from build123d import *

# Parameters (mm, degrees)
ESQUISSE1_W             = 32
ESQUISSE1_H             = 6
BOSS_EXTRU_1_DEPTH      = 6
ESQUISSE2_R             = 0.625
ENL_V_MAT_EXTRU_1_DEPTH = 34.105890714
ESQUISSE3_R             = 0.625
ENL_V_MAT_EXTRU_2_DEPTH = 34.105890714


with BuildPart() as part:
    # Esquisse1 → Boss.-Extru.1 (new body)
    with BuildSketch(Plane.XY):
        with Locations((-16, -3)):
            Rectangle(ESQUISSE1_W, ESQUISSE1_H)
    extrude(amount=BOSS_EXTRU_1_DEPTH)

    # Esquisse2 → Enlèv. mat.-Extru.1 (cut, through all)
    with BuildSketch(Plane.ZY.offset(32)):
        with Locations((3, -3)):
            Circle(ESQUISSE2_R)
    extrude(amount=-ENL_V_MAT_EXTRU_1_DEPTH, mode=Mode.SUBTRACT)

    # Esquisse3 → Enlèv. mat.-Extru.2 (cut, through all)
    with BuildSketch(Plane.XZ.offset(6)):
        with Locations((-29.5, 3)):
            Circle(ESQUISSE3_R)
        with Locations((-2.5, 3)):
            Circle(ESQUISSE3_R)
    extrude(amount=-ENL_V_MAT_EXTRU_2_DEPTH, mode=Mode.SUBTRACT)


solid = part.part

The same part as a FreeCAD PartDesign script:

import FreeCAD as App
import Part
import Sketcher

doc = App.newDocument("Part")
body = doc.addObject("PartDesign::Body", "Body")

sketch1 = doc.addObject("Sketcher::SketchObject", "Sketch")
body.addObject(sketch1)
sketch1.AttachmentSupport = (doc.XY_Plane, [""])
sketch1.MapMode = "FlatFace"
sketch1.addGeometry([
    Part.LineSegment(App.Vector(-32, 0, 0), App.Vector(-32, -6, 0)),
    Part.LineSegment(App.Vector(-32, -6, 0), App.Vector(0, -6, 0)),
    Part.LineSegment(App.Vector(0, -6, 0), App.Vector(0, 0, 0)),
    Part.LineSegment(App.Vector(0, 0, 0), App.Vector(-32, 0, 0)),
], False)
sketch1.addConstraint([
    Sketcher.Constraint("Coincident", 0, 2, 1, 1),
    Sketcher.Constraint("Coincident", 1, 2, 2, 1),
    Sketcher.Constraint("Coincident", 2, 2, 3, 1),
    Sketcher.Constraint("Coincident", 3, 2, 0, 1),
    Sketcher.Constraint("Vertical", 0),
    Sketcher.Constraint("Horizontal", 1),
    Sketcher.Constraint("Vertical", 2),
    Sketcher.Constraint("Horizontal", 3),
    Sketcher.Constraint("Coincident", 2, 2, -1, 1),
    Sketcher.Constraint("DistanceX", 1, 1, 1, 2, 32.0),
    Sketcher.Constraint("DistanceY", 0, 2, 0, 1, 6.0),
])
pad1 = doc.addObject("PartDesign::Pad", "Pad")
body.addObject(pad1)
pad1.Profile = sketch1
pad1.Length = 6

sketch2 = doc.addObject("Sketcher::SketchObject", "Sketch001")
body.addObject(sketch2)
sketch2.AttachmentSupport = (doc.YZ_Plane, [""])
sketch2.MapMode = "FlatFace"
sketch2.AttachmentOffset = App.Placement(App.Vector(0, 0, -32), App.Rotation())
sketch2.addGeometry(Part.Circle(App.Vector(-3, 3, 0), App.Vector(0, 0, 1), 0.625), False)
sketch2.addConstraint([
    Sketcher.Constraint("Diameter", 0, 1.25),
    Sketcher.Constraint("DistanceX", 0, 3, -1, 1, 3.0),
    Sketcher.Constraint("DistanceY", -1, 1, 0, 3, 3.0),
])
pocket1 = doc.addObject("PartDesign::Pocket", "Pocket")
body.addObject(pocket1)
pocket1.Profile = sketch2
pocket1.Type = "ThroughAll"
pocket1.Reversed = True

sketch3 = doc.addObject("Sketcher::SketchObject", "Sketch002")
body.addObject(sketch3)
sketch3.AttachmentSupport = (doc.XZ_Plane, [""])
sketch3.MapMode = "FlatFace"
sketch3.AttachmentOffset = App.Placement(App.Vector(0, 0, 6), App.Rotation())
sketch3.addGeometry([
    Part.Circle(App.Vector(-29.5, 3, 0), App.Vector(0, 0, 1), 0.625),
    Part.Circle(App.Vector(-2.5, 3, 0), App.Vector(0, 0, 1), 0.625),
], False)
sketch3.addConstraint([
    Sketcher.Constraint("Equal", 0, 1),
    Sketcher.Constraint("Horizontal", 0, 3, 1, 3),
    Sketcher.Constraint("Diameter", 0, 1.25),
    Sketcher.Constraint("DistanceY", -1, 1, 0, 3, 3.0),
    Sketcher.Constraint("DistanceX", 0, 3, 1, 3, 27.0),
    Sketcher.Constraint("DistanceX", 0, 3, -1, 1, 29.5),
])
pocket2 = doc.addObject("PartDesign::Pocket", "Pocket001")
body.addObject(pocket2)
pocket2.Profile = sketch3
pocket2.Type = "ThroughAll"

doc.recompute()
